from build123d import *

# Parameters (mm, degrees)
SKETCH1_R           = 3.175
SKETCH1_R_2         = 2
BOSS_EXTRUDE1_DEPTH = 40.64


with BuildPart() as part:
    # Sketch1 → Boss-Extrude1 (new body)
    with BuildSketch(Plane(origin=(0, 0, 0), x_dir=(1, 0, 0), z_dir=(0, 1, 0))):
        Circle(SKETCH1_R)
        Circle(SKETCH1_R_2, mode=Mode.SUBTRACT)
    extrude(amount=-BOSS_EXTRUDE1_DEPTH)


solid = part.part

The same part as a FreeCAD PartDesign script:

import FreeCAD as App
import Part
import Sketcher
Q = App.Units.Quantity

doc = App.newDocument("Part")
body = doc.addObject("PartDesign::Body", "Body")

sketch1 = body.newObject("Sketcher::SketchObject", "Sketch")
sketch1.AttachmentSupport = (doc.getObject("XZ_Plane"), [""])
sketch1.MapMode = "FlatFace"
sketch1.addGeometry([
    Part.Circle(App.Vector(0, 0, 0), App.Vector(0, 0, 1), 3.2),
    Part.Circle(App.Vector(0, 0, 0), App.Vector(0, 0, 1), 2),
], False)
sketch1.addConstraint([
    Sketcher.Constraint("Coincident", 0, 3, -1, 1),
    Sketcher.Constraint("Coincident", 1, 3, -1, 1),
    Sketcher.Constraint("Diameter", 0, Q("0.25 in")),
    Sketcher.Constraint("Diameter", 1, 4.0),
])
pad1 = body.newObject("PartDesign::Pad", "Pad")
pad1.Profile = sketch1
pad1.Length = Q("1.6 in")

doc.recompute()
